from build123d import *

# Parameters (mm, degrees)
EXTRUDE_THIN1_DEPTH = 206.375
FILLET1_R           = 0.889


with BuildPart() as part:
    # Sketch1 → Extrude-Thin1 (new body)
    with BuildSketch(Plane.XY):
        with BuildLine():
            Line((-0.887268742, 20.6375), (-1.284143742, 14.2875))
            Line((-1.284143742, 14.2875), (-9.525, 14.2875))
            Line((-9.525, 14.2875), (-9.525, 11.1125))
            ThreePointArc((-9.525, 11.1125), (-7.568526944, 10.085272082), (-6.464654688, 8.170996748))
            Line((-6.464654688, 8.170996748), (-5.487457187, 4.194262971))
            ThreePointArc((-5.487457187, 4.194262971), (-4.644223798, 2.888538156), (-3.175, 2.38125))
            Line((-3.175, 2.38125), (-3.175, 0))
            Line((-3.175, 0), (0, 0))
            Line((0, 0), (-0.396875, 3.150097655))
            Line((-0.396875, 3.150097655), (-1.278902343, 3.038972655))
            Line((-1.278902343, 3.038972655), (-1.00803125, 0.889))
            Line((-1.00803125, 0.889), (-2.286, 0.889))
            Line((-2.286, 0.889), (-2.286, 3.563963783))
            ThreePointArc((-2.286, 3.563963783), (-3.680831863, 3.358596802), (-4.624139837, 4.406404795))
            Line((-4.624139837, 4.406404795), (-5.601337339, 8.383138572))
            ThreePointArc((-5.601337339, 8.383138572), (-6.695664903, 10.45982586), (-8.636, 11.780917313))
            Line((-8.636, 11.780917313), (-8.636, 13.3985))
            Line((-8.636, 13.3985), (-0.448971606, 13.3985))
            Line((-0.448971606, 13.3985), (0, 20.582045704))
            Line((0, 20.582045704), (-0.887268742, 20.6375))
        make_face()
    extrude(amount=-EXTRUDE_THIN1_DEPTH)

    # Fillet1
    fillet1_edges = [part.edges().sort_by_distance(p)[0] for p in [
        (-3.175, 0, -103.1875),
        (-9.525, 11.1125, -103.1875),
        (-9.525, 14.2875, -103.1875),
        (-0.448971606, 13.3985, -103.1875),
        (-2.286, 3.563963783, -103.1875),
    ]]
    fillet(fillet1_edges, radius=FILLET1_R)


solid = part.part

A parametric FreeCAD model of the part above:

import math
import FreeCAD as App
import Part
import Sketcher
Q = App.Units.Quantity


def edges_at(feature, points):
    """Names of the edges that pass closest to the given points."""
    edges = feature.Shape.Edges
    near = lambda p: min(range(len(edges)), key=lambda i: edges[i].distToShape(Part.Vertex(*p))[0])
    return sorted({f"Edge{near(p) + 1}" for p in points})

doc = App.newDocument("Part")
body = doc.addObject("PartDesign::Body", "Body")

# Sketch on XY plane
sketch1 = body.newObject("Sketcher::SketchObject", "Sketch")
sketch1.AttachmentSupport = (doc.getObject("XY_Plane"), [""])
sketch1.MapMode = "FlatFace"
sketch1.addGeometry([
    Part.LineSegment(App.Vector(-0.887269, 20.6375, 0), App.Vector(-1.284144, 14.2875, 0)),  # 0
    Part.LineSegment(App.Vector(-1.284144, 14.2875, 0), App.Vector(-9.525, 14.2875, 0)),  # 1
    Part.LineSegment(App.Vector(-9.525, 14.2875, 0), App.Vector(-9.525, 11.1125, 0)),  # 2
    Part.ArcOfCircle(Part.Circle(App.Vector(-10.31875, 7.223935, 0), App.Vector(0, 0, 1), 3.96875), math.radians(13.80568), math.radians(78.463041)),  # 3
    Part.LineSegment(App.Vector(-6.464655, 8.170997, 0), App.Vector(-5.487457, 4.194263, 0)),  # 4
    Part.ArcOfCircle(Part.Circle(App.Vector(-3.175, 4.7625, 0), App.Vector(0, 0, 1), 2.38125), math.radians(-166.19432), math.radians(-90)),  # 5
    Part.LineSegment(App.Vector(-3.175, 2.38125, 0), App.Vector(-3.175, 0, 0)),  # 6
    Part.LineSegment(App.Vector(-3.175, 0, 0), App.Vector(0, 0, 0)),  # 7
    Part.LineSegment(App.Vector(0, 0, 0), App.Vector(-0.396875, 3.150098, 0)),  # 8
    Part.LineSegment(App.Vector(-0.396875, 3.150098, 0), App.Vector(-1.278902, 3.038973, 0)),  # 9
    Part.LineSegment(App.Vector(-1.278902, 3.038973, 0), App.Vector(-1.008031, 0.889, 0)),  # 10
    Part.LineSegment(App.Vector(-1.008031, 0.889, 0), App.Vector(-2.286, 0.889, 0)),  # 11
    Part.LineSegment(App.Vector(-2.286, 0.889, 0), App.Vector(-2.286, 3.563964, 0)),  # 12
    Part.ArcOfCircle(Part.Circle(App.Vector(-3.175, 4.7625, 0), App.Vector(0, 0, 1), 1.49225), math.radians(-166.19432), math.radians(-53.434263)),  # 13
    Part.LineSegment(App.Vector(-4.62414, 4.406405, 0), App.Vector(-5.601337, 8.383139, 0)),  # 14
    Part.ArcOfCircle(Part.Circle(App.Vector(-10.31875, 7.223935, 0), App.Vector(0, 0, 1), 4.85775), math.radians(13.80568), math.radians(69.7324)),  # 15
    Part.LineSegment(App.Vector(-8.636, 11.780917, 0), App.Vector(-8.636, 13.3985, 0)),  # 16
    Part.LineSegment(App.Vector(-8.636, 13.3985, 0), App.Vector(-0.448972, 13.3985, 0)),  # 17
    Part.LineSegment(App.Vector(-0.448972, 13.3985, 0), App.Vector(0, 20.582046, 0)),  # 18
    Part.LineSegment(App.Vector(0, 20.582046, 0), App.Vector(-0.887269, 20.6375, 0)),  # 19
], False)
sketch1.addConstraint([
    Sketcher.Constraint("Coincident", 0, 2, 1, 1),
    Sketcher.Constraint("Coincident", 1, 2, 2, 1),
    Sketcher.Constraint("Coincident", 2, 2, 3, 2),
    Sketcher.Constraint("Tangent", 3, 1, 4, 1),
    Sketcher.Constraint("Tangent", 4, 2, 5, 1),
    Sketcher.Constraint("Coincident", 5, 2, 6, 1),
    Sketcher.Constraint("Coincident", 6, 2, 7, 1),
    Sketcher.Constraint("Coincident", 7, 2, 8, 1),
    Sketcher.Constraint("Coincident", 8, 2, 9, 1),
    Sketcher.Constraint("Coincident", 9, 2, 10, 1),
    Sketcher.Constraint("Coincident", 10, 2, 11, 1),
    Sketcher.Constraint("Coincident", 11, 2, 12, 1),
    Sketcher.Constraint("Coincident", 12, 2, 13, 2),
    Sketcher.Constraint("Tangent", 13, 1, 14, 1),
    Sketcher.Constraint("Tangent", 14, 2, 15, 1),
    Sketcher.Constraint("Coincident", 15, 2, 16, 1),
    Sketcher.Constraint("Coincident", 16, 2, 17, 1),
    Sketcher.Constraint("Coincident", 17, 2, 18, 1),
    Sketcher.Constraint("Coincident", 18, 2, 19, 1),
    Sketcher.Constraint("Coincident", 19, 2, 0, 1),
    Sketcher.Constraint("Horizontal", 1),
    Sketcher.Constraint("Vertical", 2),
    Sketcher.Constraint("Vertical", 6),
    Sketcher.Constraint("Horizontal", 7),
    Sketcher.Constraint("Horizontal", 11),
    Sketcher.Constraint("Vertical", 12),
    Sketcher.Constraint("Vertical", 16),
    Sketcher.Constraint("Horizontal", 17),
    Sketcher.Constraint("Coincident", 7, 2, -1, 1),
    Sketcher.Constraint("Coincident", 13, 3, 5, 3),
    Sketcher.Constraint("Coincident", 15, 3, 3, 3),
    Sketcher.Constraint("PointOnObject", 18, 2, -2),
    Sketcher.Constraint("Perpendicular", 8, 9),
    Sketcher.Constraint("Perpendicular", 9, 10),
    Sketcher.Constraint("Parallel", 4, 14),
    Sketcher.Constraint("Parallel", 0, 18),
    Sketcher.Constraint("Perpendicular", 18, 19),
    Sketcher.Constraint("Vertical", 13, 3, 5, 2),
    Sketcher.Constraint("Equal", 7, 2),
    Sketcher.Constraint("Equal", 9, 19),
    Sketcher.Constraint("Radius", 3, Q("0.15625 in")),
    Sketcher.Constraint("Radius", 5, Q("0.09375 in")),
    Sketcher.Constraint("DistanceX", 7, 1, 7, 2, Q("0.125 in")),
    Sketcher.Constraint("DistanceY", 6, 2, 6, 1, Q("0.09375 in")),
    Sketcher.Constraint("DistanceX", 11, 2, -1, 1, Q("0.09 in")),
    Sketcher.Constraint("DistanceX", 15, 2, -1, 1, Q("0.34 in")),
    Sketcher.Constraint("DistanceX", 1, 2, 5, 3, Q("0.25 in")),
    Sketcher.Constraint("DistanceY", 5, 3, 2, 2, Q("0.25 in")),
    Sketcher.Constraint("DistanceY", 2, 2, 16, 2, Q("0.09 in")),
    Sketcher.Constraint("DistanceY", 0, 2, 19, 2, Q("0.25 in")),
    Sketcher.Constraint("Distance", 8, Q("0.125 in")),
    Sketcher.Constraint("Distance", 9, Q("0.035 in")),
    Sketcher.Constraint("DistanceX", 3, 3, -1, 1, Q("0.40625 in")),
    Sketcher.Constraint("DistanceX", 8, 2, -1, 1, Q("0.015625 in")),
    Sketcher.Constraint("DistanceY", -1, 1, 10, 2, Q("0.035 in")),
    Sketcher.Constraint("Radius", 13, Q("1.49225 mm")),
    Sketcher.Constraint("DistanceX", 0, 2, 19, 2, Q("0.015625 in")),
])
pad1 = body.newObject("PartDesign::Pad", "Pad")
pad1.Profile = sketch1
pad1.Length = Q("8.125 in")
pad1.Reversed = True
doc.recompute()

fillet = body.newObject("PartDesign::Fillet", "Fillet")
fillet.Base = (pad1, edges_at(pad1, [
    (-3.175, 0, -103.188),
    (-9.525, 11.113, -103.188),
    (-9.525, 14.287, -103.188),
    (-0.449, 13.399, -103.188),
    (-2.286, 3.564, -103.188),
]))
fillet.Radius = Q("0.035 in")

doc.recompute()
